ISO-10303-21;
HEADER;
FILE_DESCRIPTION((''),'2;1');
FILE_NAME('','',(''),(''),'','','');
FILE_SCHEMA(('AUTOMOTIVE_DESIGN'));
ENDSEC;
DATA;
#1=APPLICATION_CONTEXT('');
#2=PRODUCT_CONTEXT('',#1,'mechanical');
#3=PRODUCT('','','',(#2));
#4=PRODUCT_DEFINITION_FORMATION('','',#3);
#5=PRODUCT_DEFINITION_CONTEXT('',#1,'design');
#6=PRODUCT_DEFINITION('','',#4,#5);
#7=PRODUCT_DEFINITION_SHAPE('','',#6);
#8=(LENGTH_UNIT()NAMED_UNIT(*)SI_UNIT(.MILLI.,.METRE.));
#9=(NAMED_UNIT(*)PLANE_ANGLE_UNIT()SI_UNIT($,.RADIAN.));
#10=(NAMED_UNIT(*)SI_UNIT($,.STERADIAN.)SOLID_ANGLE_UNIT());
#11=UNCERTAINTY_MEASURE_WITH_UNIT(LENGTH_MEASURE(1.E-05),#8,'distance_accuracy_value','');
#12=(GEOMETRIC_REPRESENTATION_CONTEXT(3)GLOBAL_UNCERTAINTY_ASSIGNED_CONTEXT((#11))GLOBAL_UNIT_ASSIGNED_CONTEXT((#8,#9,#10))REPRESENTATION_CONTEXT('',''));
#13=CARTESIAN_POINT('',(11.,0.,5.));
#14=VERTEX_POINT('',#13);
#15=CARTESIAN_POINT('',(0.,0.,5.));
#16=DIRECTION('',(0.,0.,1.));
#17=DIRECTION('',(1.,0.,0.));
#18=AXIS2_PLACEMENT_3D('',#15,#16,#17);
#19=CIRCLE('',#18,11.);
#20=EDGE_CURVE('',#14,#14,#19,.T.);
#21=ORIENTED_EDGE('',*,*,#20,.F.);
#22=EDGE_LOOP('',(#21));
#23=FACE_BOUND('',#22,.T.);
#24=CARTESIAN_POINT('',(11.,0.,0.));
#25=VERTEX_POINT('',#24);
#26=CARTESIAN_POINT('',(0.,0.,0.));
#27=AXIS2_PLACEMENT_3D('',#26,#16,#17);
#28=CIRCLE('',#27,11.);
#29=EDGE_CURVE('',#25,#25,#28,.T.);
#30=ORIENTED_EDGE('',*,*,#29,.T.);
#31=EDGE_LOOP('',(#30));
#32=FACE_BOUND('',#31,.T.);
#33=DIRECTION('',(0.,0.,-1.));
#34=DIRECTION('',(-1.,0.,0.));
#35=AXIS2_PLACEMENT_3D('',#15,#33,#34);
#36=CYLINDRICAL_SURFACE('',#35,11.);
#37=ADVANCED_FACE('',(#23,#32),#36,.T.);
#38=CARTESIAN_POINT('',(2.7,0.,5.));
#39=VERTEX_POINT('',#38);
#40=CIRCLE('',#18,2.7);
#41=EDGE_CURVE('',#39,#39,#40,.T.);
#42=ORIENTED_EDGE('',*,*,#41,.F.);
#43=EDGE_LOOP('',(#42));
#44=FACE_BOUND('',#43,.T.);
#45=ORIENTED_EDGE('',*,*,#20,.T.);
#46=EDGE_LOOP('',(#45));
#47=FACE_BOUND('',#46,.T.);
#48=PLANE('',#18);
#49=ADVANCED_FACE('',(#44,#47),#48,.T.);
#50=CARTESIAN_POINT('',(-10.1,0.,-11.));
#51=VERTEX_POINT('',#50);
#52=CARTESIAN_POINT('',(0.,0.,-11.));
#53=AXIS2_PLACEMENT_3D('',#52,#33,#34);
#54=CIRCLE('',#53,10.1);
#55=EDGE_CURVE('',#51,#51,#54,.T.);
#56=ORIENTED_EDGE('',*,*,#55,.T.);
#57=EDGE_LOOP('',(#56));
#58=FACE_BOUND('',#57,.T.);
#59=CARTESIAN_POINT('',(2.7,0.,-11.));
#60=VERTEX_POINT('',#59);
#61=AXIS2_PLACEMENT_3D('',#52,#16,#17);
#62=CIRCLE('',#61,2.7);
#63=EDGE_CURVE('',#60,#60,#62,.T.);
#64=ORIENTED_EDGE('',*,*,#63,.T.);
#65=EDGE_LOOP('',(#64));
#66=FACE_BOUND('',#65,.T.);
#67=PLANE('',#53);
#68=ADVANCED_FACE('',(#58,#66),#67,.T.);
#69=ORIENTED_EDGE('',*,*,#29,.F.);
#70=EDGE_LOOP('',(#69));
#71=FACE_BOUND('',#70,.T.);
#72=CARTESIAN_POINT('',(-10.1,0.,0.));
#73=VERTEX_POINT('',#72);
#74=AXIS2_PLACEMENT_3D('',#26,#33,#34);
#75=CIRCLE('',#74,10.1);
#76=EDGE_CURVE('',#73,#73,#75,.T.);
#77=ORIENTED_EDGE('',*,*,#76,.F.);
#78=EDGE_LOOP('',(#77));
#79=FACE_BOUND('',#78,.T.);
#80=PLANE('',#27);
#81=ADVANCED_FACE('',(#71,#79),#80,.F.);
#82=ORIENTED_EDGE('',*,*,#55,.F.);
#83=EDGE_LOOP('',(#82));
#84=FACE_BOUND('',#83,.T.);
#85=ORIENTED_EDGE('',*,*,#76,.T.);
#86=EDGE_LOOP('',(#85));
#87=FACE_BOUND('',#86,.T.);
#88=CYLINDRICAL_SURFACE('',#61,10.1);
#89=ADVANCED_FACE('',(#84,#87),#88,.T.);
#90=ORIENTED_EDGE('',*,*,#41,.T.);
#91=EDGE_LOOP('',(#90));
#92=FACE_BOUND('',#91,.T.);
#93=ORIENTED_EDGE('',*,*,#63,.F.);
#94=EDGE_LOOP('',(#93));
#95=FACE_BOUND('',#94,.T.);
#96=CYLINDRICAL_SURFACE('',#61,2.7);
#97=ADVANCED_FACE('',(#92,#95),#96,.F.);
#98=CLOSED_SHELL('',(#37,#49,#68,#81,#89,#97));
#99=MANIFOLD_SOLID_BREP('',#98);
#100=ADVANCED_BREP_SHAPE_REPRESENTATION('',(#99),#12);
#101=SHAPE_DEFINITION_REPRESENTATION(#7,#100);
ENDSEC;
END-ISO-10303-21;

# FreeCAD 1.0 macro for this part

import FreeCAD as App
import Part
import Sketcher
from FreeCAD import Vector
Q = App.Units.Quantity

doc = App.newDocument("Part")
body = doc.addObject("PartDesign::Body", "Body")

sketch1 = body.newObject("Sketcher::SketchObject", "Sketch")
sketch1.AttachmentSupport = (doc.getObject("XY_Plane"), [""])
sketch1.MapMode = "FlatFace"
sketch1.addGeometry(Part.Circle(Vector(0, 0, 0), Vector(0, 0, 1), 11), False)
sketch1.addConstraint(Sketcher.Constraint("Coincident", 0, 3, -1, 1))
sketch1.addConstraint(Sketcher.Constraint("Diameter", 0, Q("22 mm")))
pad1 = body.newObject("PartDesign::Pad", "Pad")
pad1.Profile = sketch1
pad1.Length = 5

sketch2 = body.newObject("Sketcher::SketchObject", "Sketch001")
sketch2.AttachmentSupport = (doc.getObject("XY_Plane"), [""])
sketch2.MapMode = "FlatFace"
sketch2.addGeometry(Part.Circle(Vector(0, 0, 0), Vector(0, 0, 1), 10), False)
sketch2.addConstraint(Sketcher.Constraint("Coincident", 0, 3, -1, 1))
sketch2.addConstraint(Sketcher.Constraint("Diameter", 0, Q("20.2 mm")))
pad2 = body.newObject("PartDesign::Pad", "Pad001")
pad2.Profile = sketch2
pad2.Length = 11
pad2.Reversed = True

sketch3 = body.newObject("Sketcher::SketchObject", "Sketch002")
sketch3.AttachmentSupport = (doc.getObject("XY_Plane"), [""])
sketch3.MapMode = "FlatFace"
sketch3.AttachmentOffset = App.Placement(Vector(0, 0, 5), App.Rotation())
sketch3.addGeometry(Part.Circle(Vector(0, 0, 0), Vector(0, 0, 1), 2.7), False)
sketch3.addConstraint(Sketcher.Constraint("Coincident", 0, 3, -1, 1))
sketch3.addConstraint(Sketcher.Constraint("Diameter", 0, Q("5.4 mm")))
pocket1 = body.newObject("PartDesign::Pocket", "Pocket")
pocket1.Profile = sketch3
pocket1.Type = "ThroughAll"

doc.recompute()
